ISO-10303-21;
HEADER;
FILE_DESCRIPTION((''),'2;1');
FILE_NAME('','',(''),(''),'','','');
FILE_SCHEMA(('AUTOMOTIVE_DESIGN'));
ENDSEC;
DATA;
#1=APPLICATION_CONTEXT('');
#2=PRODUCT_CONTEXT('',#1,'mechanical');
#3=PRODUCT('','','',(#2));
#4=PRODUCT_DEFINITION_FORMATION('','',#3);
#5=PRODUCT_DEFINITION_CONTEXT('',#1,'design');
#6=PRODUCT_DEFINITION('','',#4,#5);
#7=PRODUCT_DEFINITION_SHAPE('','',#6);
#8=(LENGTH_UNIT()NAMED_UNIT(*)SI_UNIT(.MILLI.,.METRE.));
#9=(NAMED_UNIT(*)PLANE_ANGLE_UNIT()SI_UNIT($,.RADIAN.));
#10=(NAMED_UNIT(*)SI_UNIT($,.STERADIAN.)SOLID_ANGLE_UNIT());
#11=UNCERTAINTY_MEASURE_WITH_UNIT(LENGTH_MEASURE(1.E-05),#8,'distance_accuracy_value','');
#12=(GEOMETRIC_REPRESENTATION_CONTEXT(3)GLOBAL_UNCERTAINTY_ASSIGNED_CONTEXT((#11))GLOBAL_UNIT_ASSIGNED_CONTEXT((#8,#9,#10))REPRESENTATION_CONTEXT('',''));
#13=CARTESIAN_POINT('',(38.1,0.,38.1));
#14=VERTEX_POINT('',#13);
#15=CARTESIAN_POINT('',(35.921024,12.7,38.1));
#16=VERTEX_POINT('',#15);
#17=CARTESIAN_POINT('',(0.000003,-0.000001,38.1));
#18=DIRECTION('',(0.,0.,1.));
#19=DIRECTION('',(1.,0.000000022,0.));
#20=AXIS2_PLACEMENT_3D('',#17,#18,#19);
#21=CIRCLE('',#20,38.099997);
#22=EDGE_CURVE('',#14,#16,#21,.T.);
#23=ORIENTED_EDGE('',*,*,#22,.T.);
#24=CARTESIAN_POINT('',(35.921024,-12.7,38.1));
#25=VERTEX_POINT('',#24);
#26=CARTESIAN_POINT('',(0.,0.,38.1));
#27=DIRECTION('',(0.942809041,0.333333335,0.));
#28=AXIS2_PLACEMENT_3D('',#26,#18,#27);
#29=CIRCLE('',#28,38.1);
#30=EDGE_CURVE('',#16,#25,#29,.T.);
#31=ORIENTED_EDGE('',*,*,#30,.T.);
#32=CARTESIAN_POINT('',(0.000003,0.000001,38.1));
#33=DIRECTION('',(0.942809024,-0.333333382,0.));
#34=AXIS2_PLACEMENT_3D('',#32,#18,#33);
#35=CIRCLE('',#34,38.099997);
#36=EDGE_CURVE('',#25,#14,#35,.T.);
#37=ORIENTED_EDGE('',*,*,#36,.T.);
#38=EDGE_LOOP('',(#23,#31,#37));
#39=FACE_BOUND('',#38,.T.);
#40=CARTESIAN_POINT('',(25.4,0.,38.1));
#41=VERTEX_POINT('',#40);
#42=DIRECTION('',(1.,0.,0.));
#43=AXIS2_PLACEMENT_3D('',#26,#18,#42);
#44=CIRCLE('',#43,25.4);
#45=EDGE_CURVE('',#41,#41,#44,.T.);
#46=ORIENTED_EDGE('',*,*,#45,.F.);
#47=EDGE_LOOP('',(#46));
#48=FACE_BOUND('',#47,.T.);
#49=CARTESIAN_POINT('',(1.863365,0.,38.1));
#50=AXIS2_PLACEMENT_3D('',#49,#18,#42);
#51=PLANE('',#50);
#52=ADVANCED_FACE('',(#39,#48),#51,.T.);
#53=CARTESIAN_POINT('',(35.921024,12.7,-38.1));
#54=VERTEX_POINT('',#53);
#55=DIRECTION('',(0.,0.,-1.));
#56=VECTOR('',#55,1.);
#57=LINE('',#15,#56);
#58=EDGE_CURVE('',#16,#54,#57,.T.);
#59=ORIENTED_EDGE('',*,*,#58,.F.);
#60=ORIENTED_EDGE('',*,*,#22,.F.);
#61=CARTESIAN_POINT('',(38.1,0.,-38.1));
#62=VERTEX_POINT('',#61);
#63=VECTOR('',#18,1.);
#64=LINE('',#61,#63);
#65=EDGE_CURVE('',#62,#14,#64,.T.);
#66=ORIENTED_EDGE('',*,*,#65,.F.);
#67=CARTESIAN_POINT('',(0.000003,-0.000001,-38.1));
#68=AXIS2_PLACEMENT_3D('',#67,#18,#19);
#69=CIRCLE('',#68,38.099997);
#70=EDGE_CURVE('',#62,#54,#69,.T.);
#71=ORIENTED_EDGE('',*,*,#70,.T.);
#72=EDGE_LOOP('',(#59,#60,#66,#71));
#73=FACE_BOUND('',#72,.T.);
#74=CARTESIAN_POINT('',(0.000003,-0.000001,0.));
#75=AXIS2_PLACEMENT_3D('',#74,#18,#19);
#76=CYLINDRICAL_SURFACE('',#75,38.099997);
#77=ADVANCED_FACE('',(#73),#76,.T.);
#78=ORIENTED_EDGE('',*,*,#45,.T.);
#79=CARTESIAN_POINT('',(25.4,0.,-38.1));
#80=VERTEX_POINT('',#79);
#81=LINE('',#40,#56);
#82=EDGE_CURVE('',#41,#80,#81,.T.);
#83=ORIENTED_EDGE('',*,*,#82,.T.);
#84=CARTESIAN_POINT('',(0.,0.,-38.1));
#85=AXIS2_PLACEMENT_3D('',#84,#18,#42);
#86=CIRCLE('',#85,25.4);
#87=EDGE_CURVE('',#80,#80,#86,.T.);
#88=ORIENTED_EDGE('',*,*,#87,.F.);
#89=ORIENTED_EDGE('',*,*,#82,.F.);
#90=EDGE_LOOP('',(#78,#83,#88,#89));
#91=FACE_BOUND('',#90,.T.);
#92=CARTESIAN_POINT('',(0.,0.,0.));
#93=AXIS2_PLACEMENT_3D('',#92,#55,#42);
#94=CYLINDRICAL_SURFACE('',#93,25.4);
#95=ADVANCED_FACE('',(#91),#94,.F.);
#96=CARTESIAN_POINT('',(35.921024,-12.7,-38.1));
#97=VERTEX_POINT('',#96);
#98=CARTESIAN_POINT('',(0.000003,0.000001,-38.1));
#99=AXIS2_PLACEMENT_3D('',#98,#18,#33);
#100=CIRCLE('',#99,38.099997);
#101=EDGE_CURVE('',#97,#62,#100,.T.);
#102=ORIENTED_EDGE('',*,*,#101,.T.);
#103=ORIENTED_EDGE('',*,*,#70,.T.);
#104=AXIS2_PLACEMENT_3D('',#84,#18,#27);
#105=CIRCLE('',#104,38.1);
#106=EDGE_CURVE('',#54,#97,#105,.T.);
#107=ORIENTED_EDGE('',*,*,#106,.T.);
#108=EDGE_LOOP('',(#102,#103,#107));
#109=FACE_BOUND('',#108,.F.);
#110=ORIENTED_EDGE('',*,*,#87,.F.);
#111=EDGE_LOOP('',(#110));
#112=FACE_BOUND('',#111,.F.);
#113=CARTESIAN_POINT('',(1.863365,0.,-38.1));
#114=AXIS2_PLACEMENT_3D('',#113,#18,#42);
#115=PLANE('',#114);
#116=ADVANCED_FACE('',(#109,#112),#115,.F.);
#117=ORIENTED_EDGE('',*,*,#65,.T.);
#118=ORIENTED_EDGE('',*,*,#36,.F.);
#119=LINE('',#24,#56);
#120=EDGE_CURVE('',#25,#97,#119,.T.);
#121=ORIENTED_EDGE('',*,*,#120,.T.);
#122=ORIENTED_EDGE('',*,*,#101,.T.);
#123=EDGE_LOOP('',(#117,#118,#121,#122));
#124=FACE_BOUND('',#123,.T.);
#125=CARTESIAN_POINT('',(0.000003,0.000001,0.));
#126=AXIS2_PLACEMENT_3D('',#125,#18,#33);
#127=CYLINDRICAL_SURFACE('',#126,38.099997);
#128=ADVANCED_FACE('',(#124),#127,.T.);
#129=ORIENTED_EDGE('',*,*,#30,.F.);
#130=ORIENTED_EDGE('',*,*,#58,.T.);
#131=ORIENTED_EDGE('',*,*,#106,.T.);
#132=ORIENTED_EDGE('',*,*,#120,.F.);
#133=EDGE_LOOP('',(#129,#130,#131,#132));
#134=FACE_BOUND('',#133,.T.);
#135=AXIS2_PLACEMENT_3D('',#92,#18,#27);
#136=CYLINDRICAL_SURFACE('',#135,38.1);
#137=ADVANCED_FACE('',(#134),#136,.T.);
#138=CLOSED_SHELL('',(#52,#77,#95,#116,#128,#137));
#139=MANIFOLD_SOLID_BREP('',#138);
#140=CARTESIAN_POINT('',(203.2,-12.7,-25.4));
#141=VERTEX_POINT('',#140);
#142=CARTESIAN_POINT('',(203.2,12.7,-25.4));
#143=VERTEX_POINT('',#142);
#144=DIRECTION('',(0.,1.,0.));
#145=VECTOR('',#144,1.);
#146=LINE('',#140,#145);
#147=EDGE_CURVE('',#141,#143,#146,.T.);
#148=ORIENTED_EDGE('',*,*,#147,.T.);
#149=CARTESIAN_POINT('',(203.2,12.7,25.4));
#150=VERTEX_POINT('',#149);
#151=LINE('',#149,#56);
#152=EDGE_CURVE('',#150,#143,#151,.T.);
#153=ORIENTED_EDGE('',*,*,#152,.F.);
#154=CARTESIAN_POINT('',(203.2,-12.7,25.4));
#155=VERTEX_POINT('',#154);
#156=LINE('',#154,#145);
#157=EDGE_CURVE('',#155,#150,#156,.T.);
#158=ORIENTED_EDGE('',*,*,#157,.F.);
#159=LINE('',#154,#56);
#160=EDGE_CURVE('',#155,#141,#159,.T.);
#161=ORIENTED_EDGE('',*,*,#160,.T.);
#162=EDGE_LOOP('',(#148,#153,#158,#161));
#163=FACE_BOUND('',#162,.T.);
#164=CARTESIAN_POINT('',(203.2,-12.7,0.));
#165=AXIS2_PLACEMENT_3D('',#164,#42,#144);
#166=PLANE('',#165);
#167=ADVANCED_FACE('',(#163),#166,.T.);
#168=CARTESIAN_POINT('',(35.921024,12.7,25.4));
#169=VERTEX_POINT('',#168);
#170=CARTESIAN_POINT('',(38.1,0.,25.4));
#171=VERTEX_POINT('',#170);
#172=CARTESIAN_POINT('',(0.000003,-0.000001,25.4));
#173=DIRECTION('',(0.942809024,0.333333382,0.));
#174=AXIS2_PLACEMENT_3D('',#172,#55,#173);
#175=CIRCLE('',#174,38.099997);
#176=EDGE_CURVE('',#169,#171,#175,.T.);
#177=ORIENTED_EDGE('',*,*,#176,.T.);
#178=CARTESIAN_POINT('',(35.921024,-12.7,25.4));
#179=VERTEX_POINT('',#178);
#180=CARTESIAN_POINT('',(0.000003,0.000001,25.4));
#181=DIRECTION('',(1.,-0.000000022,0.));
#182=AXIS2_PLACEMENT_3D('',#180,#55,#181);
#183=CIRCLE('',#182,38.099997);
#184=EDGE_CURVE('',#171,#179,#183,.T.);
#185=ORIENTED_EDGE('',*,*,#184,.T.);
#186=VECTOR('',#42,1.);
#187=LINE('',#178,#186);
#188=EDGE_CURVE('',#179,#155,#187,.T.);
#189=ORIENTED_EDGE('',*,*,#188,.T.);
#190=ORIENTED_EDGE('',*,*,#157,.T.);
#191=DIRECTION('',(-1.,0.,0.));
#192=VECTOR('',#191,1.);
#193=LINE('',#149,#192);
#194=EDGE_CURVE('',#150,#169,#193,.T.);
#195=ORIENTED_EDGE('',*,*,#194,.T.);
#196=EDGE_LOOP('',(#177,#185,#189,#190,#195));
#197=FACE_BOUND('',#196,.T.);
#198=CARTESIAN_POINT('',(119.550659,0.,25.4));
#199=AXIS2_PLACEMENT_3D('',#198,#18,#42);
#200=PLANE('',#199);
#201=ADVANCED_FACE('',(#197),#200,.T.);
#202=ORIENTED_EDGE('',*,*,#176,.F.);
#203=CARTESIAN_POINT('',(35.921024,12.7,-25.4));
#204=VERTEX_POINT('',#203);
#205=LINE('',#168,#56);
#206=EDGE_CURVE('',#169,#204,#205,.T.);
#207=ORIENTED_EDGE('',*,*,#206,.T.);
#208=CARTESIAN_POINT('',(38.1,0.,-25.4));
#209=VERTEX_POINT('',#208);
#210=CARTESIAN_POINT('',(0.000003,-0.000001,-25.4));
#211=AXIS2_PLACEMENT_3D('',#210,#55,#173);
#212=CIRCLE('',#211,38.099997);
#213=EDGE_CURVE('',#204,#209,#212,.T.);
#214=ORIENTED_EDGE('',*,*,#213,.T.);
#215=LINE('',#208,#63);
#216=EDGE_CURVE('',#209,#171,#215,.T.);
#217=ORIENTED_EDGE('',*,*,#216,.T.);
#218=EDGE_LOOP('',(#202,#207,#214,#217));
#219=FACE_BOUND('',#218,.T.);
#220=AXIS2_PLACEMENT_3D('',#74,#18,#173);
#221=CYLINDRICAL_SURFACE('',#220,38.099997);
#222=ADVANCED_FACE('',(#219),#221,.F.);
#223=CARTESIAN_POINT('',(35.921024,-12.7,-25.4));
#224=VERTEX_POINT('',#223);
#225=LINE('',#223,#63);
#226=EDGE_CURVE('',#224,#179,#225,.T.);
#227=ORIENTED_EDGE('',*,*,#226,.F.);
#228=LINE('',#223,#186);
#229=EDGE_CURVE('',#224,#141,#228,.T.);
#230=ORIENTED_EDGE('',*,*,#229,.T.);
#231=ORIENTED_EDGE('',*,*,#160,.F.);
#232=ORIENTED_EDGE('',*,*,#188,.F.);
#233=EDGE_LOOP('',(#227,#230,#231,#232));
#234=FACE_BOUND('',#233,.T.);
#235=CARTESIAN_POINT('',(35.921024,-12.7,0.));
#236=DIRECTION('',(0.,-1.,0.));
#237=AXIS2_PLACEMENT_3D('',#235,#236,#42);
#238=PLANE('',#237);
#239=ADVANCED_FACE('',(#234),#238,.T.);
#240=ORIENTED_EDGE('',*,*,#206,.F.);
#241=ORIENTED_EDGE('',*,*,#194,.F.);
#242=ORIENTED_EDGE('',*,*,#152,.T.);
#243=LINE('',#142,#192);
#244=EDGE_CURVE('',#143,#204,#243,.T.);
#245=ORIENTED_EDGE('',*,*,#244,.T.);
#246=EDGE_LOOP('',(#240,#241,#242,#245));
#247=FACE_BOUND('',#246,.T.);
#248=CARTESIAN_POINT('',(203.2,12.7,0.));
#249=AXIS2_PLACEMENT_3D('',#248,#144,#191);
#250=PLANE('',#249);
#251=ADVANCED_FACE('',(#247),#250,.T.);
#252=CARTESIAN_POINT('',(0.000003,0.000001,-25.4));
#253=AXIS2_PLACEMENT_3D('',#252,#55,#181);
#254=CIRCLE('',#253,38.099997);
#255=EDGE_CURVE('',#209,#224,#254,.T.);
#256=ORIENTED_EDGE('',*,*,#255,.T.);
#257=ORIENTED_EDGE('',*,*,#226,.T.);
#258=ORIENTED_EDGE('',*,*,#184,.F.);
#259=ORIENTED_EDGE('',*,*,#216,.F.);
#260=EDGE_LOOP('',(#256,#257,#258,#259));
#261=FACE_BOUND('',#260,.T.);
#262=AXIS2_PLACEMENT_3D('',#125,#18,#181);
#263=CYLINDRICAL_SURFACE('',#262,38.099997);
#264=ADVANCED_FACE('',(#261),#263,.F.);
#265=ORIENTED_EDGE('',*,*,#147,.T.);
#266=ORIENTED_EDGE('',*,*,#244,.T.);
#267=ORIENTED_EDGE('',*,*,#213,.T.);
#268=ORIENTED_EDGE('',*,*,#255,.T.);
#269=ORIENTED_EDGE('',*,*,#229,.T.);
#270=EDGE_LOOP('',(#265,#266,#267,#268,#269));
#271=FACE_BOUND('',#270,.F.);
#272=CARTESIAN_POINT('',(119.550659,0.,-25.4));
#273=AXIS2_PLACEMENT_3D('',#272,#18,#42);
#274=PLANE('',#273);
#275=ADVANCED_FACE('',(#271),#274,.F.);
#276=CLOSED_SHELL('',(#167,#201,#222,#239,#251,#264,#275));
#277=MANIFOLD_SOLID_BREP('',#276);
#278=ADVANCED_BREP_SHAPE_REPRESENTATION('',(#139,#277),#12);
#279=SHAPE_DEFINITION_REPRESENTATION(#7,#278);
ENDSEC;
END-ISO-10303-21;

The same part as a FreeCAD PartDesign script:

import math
import FreeCAD as App
import Part
import Sketcher

V = App.Vector
Q = App.Units.Quantity

doc = App.newDocument("Part")
params = doc.addObject("Spreadsheet::Sheet", "Params")
for row, (alias, value) in enumerate([
    ("sketch1_diameter", "2 in"),
    ("sketch1_radius", "1.4999999 in"),
    ("pad1_length", "3 in"),
    ("sketch2_radius", "1.4999999 in"),
    ("sketch2_height", "1 in"),
    ("pad2_length", "2 in"),
], start=1):
    params.set(f"A{row}", alias)
    params.set(f"B{row}", "=" + value)
    params.setAlias(f"B{row}", alias)

body = doc.addObject("PartDesign::Body", "Body")

# Sketch on XY plane
sketch1 = body.newObject("Sketcher::SketchObject", "Sketch")
sketch1.AttachmentSupport = (doc.getObject("XY_Plane"), [""])
sketch1.MapMode = "FlatFace"
sketch1.addGeometry([
    Part.ArcOfCircle(Part.Circle(V(0, 0, 0), V(0, 0, 1), 38), math.radians(-19.47), math.radians(0)),
    Part.ArcOfCircle(Part.Circle(V(0, 0, 0), V(0, 0, 1), 38), math.radians(0), math.radians(19.47)),
    Part.ArcOfCircle(Part.Circle(V(0, 0, 0), V(0, 0, 1), 38), math.radians(19), math.radians(341)),
    Part.Circle(V(0, 0, 0), V(0, 0, 1), 25),
], False)
sketch1.addConstraint([
    Sketcher.Constraint("Tangent", 0, 2, 1, 1),
    Sketcher.Constraint("Tangent", 1, 2, 2, 1),
    Sketcher.Constraint("Tangent", 2, 2, 0, 1),
    Sketcher.Constraint("Coincident", 0, 3, -1, 1),
    Sketcher.Constraint("Coincident", 3, 3, -1, 1),
    Sketcher.Constraint("PointOnObject", 0, 2, -1),
    Sketcher.Constraint("Vertical", 1, 2, 2, 2),
    Sketcher.Constraint("Diameter", 3, Q("2 in")),
    Sketcher.Constraint("Radius", 0, Q("1.4999999 in")),
    Sketcher.Constraint("DistanceY", 2, 2, 1, 2, Q("1 in")),
])
sketch1.setExpression("Constraints[7]", "Params.sketch1_diameter")
sketch1.setExpression("Constraints[8]", "Params.sketch1_radius")
pad1 = body.newObject("PartDesign::Pad", "Pad")
pad1.Profile = sketch1
pad1.setExpression("Length", "Params.pad1_length")
pad1.Midplane = True
body2 = doc.addObject("PartDesign::Body", "Body001")

# Sketch on XY plane
sketch2 = body2.newObject("Sketcher::SketchObject", "Sketch001")
sketch2.AttachmentSupport = (doc.getObject("XY_Plane001"), [""])
sketch2.MapMode = "FlatFace"
sketch2.addGeometry([
    Part.ArcOfCircle(Part.Circle(V(0, 0, 0), V(0, 0, 1), 38), math.radians(0), math.radians(19.47)),  # 0
    Part.ArcOfCircle(Part.Circle(V(0, 0, 0), V(0, 0, 1), 38), math.radians(-19.47), math.radians(0)),  # 1
    Part.LineSegment(V(36, -13, 0), V(203, -13, 0)),  # 2
    Part.LineSegment(V(203, -13, 0), V(203, 13, 0)),  # 3
    Part.LineSegment(V(203, 13, 0), V(36, 13, 0)),  # 4
], False)
sketch2.addConstraint([
    Sketcher.Constraint("Tangent", 0, 1, 1, 2),
    Sketcher.Constraint("Coincident", 1, 1, 2, 1),
    Sketcher.Constraint("Coincident", 2, 2, 3, 1),
    Sketcher.Constraint("Coincident", 3, 2, 4, 1),
    Sketcher.Constraint("Coincident", 4, 2, 0, 2),
    Sketcher.Constraint("Horizontal", 2),
    Sketcher.Constraint("Vertical", 3),
    Sketcher.Constraint("Horizontal", 4),
    Sketcher.Constraint("Coincident", 0, 3, -1, 1),
    Sketcher.Constraint("Equal", 0, 1),
    Sketcher.Constraint("PointOnObject", 0, 1, -1),
    Sketcher.Constraint("Vertical", 1, 1, 4, 2),
    Sketcher.Constraint("Radius", 0, Q("1.4999999 in")),
    Sketcher.Constraint("DistanceY", 3, 1, 3, 2, Q("1 in")),
    Sketcher.Constraint("DistanceX", -1, 1, 2, 2, Q("8 in")),
])
sketch2.setExpression("Constraints[12]", "Params.sketch2_radius")
sketch2.setExpression("Constraints[13]", "Params.sketch2_height")
pad2 = body2.newObject("PartDesign::Pad", "Pad001")
pad2.Profile = sketch2
pad2.setExpression("Length", "Params.pad2_length")
pad2.Midplane = True

doc.recompute()
